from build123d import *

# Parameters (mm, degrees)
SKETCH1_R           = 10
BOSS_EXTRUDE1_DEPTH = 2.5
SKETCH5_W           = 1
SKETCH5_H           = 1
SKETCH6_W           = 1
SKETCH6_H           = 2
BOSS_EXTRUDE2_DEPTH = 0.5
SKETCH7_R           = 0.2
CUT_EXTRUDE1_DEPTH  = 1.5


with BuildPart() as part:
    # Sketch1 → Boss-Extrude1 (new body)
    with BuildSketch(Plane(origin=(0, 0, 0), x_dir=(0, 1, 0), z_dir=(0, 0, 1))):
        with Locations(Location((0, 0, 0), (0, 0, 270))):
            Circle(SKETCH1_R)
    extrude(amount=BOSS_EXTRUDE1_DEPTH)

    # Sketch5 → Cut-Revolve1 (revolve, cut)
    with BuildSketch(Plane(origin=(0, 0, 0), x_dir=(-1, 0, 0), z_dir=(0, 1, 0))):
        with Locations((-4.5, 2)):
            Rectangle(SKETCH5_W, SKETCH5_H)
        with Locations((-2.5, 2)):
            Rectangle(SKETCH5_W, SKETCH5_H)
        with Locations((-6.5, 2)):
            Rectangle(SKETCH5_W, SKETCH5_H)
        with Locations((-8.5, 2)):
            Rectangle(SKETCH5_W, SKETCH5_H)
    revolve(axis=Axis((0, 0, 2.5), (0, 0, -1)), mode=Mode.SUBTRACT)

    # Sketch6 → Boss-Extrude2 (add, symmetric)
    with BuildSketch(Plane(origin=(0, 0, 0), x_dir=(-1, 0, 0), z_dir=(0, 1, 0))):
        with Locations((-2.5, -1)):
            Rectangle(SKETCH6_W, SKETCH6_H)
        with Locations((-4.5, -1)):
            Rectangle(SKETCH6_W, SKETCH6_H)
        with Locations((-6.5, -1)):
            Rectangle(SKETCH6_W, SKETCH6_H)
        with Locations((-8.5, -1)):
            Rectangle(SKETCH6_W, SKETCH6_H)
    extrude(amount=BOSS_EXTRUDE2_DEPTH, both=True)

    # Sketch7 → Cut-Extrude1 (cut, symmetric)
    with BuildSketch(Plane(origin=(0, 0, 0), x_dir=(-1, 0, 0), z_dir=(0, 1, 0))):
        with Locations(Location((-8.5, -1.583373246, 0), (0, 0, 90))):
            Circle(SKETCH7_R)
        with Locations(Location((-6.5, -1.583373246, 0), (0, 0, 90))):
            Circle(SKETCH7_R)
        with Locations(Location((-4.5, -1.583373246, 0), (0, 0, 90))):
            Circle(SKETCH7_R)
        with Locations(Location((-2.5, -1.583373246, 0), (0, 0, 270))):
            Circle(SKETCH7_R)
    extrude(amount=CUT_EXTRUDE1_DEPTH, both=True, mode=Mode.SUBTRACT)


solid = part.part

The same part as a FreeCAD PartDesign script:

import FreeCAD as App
import Part
import Sketcher

V = App.Vector
Q = App.Units.Quantity

doc = App.newDocument("Part")
body = doc.addObject("PartDesign::Body", "Body")

sketch1 = body.newObject("Sketcher::SketchObject", "Sketch")
sketch1.AttachmentSupport = (doc.getObject("XY_Plane"), [""])
sketch1.MapMode = "FlatFace"
sketch1.addGeometry(Part.Circle(V(0, 0, 0), V(0, 0, 1), 10), False)
sketch1.addConstraint(Sketcher.Constraint("Coincident", 0, 3, -1, 1))
sketch1.addConstraint(Sketcher.Constraint("Diameter", 0, Q("20 mm")))
pad1 = body.newObject("PartDesign::Pad", "Pad")
pad1.Profile = sketch1
pad1.Length = 2.5

sketch2 = body.newObject("Sketcher::SketchObject", "Sketch001")
sketch2.AttachmentSupport = (doc.getObject("XZ_Plane"), [""])
sketch2.MapMode = "FlatFace"
sketch2.addGeometry(Part.LineSegment(V(5, 2.5, 0), V(5, 1.5, 0)), False)
sketch2.addGeometry(Part.LineSegment(V(5, 1.5, 0), V(4, 1.5, 0)), False)
sketch2.addGeometry(Part.LineSegment(V(4, 1.5, 0), V(4, 2.5, 0)), False)
sketch2.addGeometry(Part.LineSegment(V(4, 2.5, 0), V(5, 2.5, 0)), False)
sketch2.addGeometry(Part.LineSegment(V(3, 2.5, 0), V(3, 1.5, 0)), False)
sketch2.addGeometry(Part.LineSegment(V(3, 1.5, 0), V(2, 1.5, 0)), False)
sketch2.addGeometry(Part.LineSegment(V(2, 1.5, 0), V(2, 2.5, 0)), False)
sketch2.addGeometry(Part.LineSegment(V(2, 2.5, 0), V(3, 2.5, 0)), False)
sketch2.addGeometry(Part.LineSegment(V(7, 2.5, 0), V(7, 1.5, 0)), False)
sketch2.addGeometry(Part.LineSegment(V(7, 1.5, 0), V(6, 1.5, 0)), False)
sketch2.addGeometry(Part.LineSegment(V(6, 1.5, 0), V(6, 2.5, 0)), False)
sketch2.addGeometry(Part.LineSegment(V(6, 2.5, 0), V(7, 2.5, 0)), False)
sketch2.addGeometry(Part.LineSegment(V(9, 2.5, 0), V(9, 1.5, 0)), False)
sketch2.addGeometry(Part.LineSegment(V(9, 1.5, 0), V(8, 1.5, 0)), False)
sketch2.addGeometry(Part.LineSegment(V(8, 1.5, 0), V(8, 2.5, 0)), False)
sketch2.addGeometry(Part.LineSegment(V(8, 2.5, 0), V(9, 2.5, 0)), False)
sketch2.addConstraint(Sketcher.Constraint("Coincident", 0, 2, 1, 1))
sketch2.addConstraint(Sketcher.Constraint("Coincident", 1, 2, 2, 1))
sketch2.addConstraint(Sketcher.Constraint("Coincident", 2, 2, 3, 1))
sketch2.addConstraint(Sketcher.Constraint("Coincident", 3, 2, 0, 1))
sketch2.addConstraint(Sketcher.Constraint("Coincident", 4, 2, 5, 1))
sketch2.addConstraint(Sketcher.Constraint("Coincident", 5, 2, 6, 1))
sketch2.addConstraint(Sketcher.Constraint("Coincident", 6, 2, 7, 1))
sketch2.addConstraint(Sketcher.Constraint("Coincident", 7, 2, 4, 1))
sketch2.addConstraint(Sketcher.Constraint("Coincident", 8, 2, 9, 1))
sketch2.addConstraint(Sketcher.Constraint("Coincident", 9, 2, 10, 1))
sketch2.addConstraint(Sketcher.Constraint("Coincident", 10, 2, 11, 1))
sketch2.addConstraint(Sketcher.Constraint("Coincident", 11, 2, 8, 1))
sketch2.addConstraint(Sketcher.Constraint("Coincident", 12, 2, 13, 1))
sketch2.addConstraint(Sketcher.Constraint("Coincident", 13, 2, 14, 1))
sketch2.addConstraint(Sketcher.Constraint("Coincident", 14, 2, 15, 1))
sketch2.addConstraint(Sketcher.Constraint("Coincident", 15, 2, 12, 1))
sketch2.addConstraint(Sketcher.Constraint("Vertical", 0))
sketch2.addConstraint(Sketcher.Constraint("Horizontal", 1))
sketch2.addConstraint(Sketcher.Constraint("Vertical", 2))
sketch2.addConstraint(Sketcher.Constraint("Horizontal", 3))
sketch2.addConstraint(Sketcher.Constraint("Vertical", 4))
sketch2.addConstraint(Sketcher.Constraint("Horizontal", 5))
sketch2.addConstraint(Sketcher.Constraint("Vertical", 6))
sketch2.addConstraint(Sketcher.Constraint("Horizontal", 7))
sketch2.addConstraint(Sketcher.Constraint("Vertical", 8))
sketch2.addConstraint(Sketcher.Constraint("Horizontal", 9))
sketch2.addConstraint(Sketcher.Constraint("Vertical", 10))
sketch2.addConstraint(Sketcher.Constraint("Horizontal", 11))
sketch2.addConstraint(Sketcher.Constraint("Vertical", 12))
sketch2.addConstraint(Sketcher.Constraint("Horizontal", 13))
sketch2.addConstraint(Sketcher.Constraint("Vertical", 14))
sketch2.addConstraint(Sketcher.Constraint("Horizontal", 15))
sketch2.addConstraint(Sketcher.Constraint("Horizontal", 1, 2, 4, 2))
sketch2.addConstraint(Sketcher.Constraint("Horizontal", 3, 2, 6, 2))
sketch2.addConstraint(Sketcher.Constraint("Horizontal", 5, 2, 8, 2))
sketch2.addConstraint(Sketcher.Constraint("Horizontal", 7, 2, 10, 2))
sketch2.addConstraint(Sketcher.Constraint("Horizontal", 9, 2, 12, 2))
sketch2.addConstraint(Sketcher.Constraint("Horizontal", 11, 2, 14, 2))
sketch2.addConstraint(Sketcher.Constraint("Equal", 3, 5))
sketch2.addConstraint(Sketcher.Constraint("Equal", 7, 9))
sketch2.addConstraint(Sketcher.Constraint("Equal", 11, 13))
sketch2.addConstraint(Sketcher.Constraint("Equal", 15, 0))
sketch2.addConstraint(Sketcher.Constraint("DistanceX", 1, 2, 1, 1, Q("1 mm")))
sketch2.addConstraint(Sketcher.Constraint("DistanceX", -1, 1, 0, 2, Q("5 mm")))
sketch2.addConstraint(Sketcher.Constraint("DistanceX", -1, 1, 4, 2, Q("3 mm")))
sketch2.addConstraint(Sketcher.Constraint("DistanceX", -1, 1, 8, 2, Q("7 mm")))
sketch2.addConstraint(Sketcher.Constraint("DistanceX", -1, 1, 12, 2, Q("9 mm")))
sketch2.addConstraint(Sketcher.Constraint("DistanceY", -1, 1, 0, 2, Q("1.5 mm")))
groove = body.newObject("PartDesign::Groove", "Groove")
groove.Profile = sketch2
groove.ReferenceAxis = (sketch2, ["V_Axis"])
groove.Angle = 360

sketch3 = body.newObject("Sketcher::SketchObject", "Sketch002")
sketch3.AttachmentSupport = (doc.getObject("XZ_Plane"), [""])
sketch3.MapMode = "FlatFace"
sketch3.addGeometry(Part.LineSegment(V(3, 0, 0), V(3, -2, 0)), False)
sketch3.addGeometry(Part.LineSegment(V(3, -2, 0), V(2, -2, 0)), False)
sketch3.addGeometry(Part.LineSegment(V(2, -2, 0), V(2, 0, 0)), False)
sketch3.addGeometry(Part.LineSegment(V(2, 0, 0), V(3, 0, 0)), False)
sketch3.addGeometry(Part.LineSegment(V(5, 0, 0), V(5, -2, 0)), False)
sketch3.addGeometry(Part.LineSegment(V(5, -2, 0), V(4, -2, 0)), False)
sketch3.addGeometry(Part.LineSegment(V(4, -2, 0), V(4, 0, 0)), False)
sketch3.addGeometry(Part.LineSegment(V(4, 0, 0), V(5, 0, 0)), False)
sketch3.addGeometry(Part.LineSegment(V(7, 0, 0), V(7, -2, 0)), False)
sketch3.addGeometry(Part.LineSegment(V(7, -2, 0), V(6, -2, 0)), False)
sketch3.addGeometry(Part.LineSegment(V(6, -2, 0), V(6, 0, 0)), False)
sketch3.addGeometry(Part.LineSegment(V(6, 0, 0), V(7, 0, 0)), False)
sketch3.addGeometry(Part.LineSegment(V(9, 0, 0), V(9, -2, 0)), False)
sketch3.addGeometry(Part.LineSegment(V(9, -2, 0), V(8, -2, 0)), False)
sketch3.addGeometry(Part.LineSegment(V(8, -2, 0), V(8, 0, 0)), False)
sketch3.addGeometry(Part.LineSegment(V(8, 0, 0), V(9, 0, 0)), False)
sketch3.addConstraint(Sketcher.Constraint("Coincident", 0, 2, 1, 1))
sketch3.addConstraint(Sketcher.Constraint("Coincident", 1, 2, 2, 1))
sketch3.addConstraint(Sketcher.Constraint("Coincident", 2, 2, 3, 1))
sketch3.addConstraint(Sketcher.Constraint("Coincident", 3, 2, 0, 1))
sketch3.addConstraint(Sketcher.Constraint("Coincident", 4, 2, 5, 1))
sketch3.addConstraint(Sketcher.Constraint("Coincident", 5, 2, 6, 1))
sketch3.addConstraint(Sketcher.Constraint("Coincident", 6, 2, 7, 1))
sketch3.addConstraint(Sketcher.Constraint("Coincident", 7, 2, 4, 1))
sketch3.addConstraint(Sketcher.Constraint("Coincident", 8, 2, 9, 1))
sketch3.addConstraint(Sketcher.Constraint("Coincident", 9, 2, 10, 1))
sketch3.addConstraint(Sketcher.Constraint("Coincident", 10, 2, 11, 1))
sketch3.addConstraint(Sketcher.Constraint("Coincident", 11, 2, 8, 1))
sketch3.addConstraint(Sketcher.Constraint("Coincident", 12, 2, 13, 1))
sketch3.addConstraint(Sketcher.Constraint("Coincident", 13, 2, 14, 1))
sketch3.addConstraint(Sketcher.Constraint("Coincident", 14, 2, 15, 1))
sketch3.addConstraint(Sketcher.Constraint("Coincident", 15, 2, 12, 1))
sketch3.addConstraint(Sketcher.Constraint("Vertical", 0))
sketch3.addConstraint(Sketcher.Constraint("Horizontal", 1))
sketch3.addConstraint(Sketcher.Constraint("Vertical", 2))
sketch3.addConstraint(Sketcher.Constraint("Horizontal", 3))
sketch3.addConstraint(Sketcher.Constraint("Vertical", 4))
sketch3.addConstraint(Sketcher.Constraint("Horizontal", 5))
sketch3.addConstraint(Sketcher.Constraint("Vertical", 6))
sketch3.addConstraint(Sketcher.Constraint("Horizontal", 7))
sketch3.addConstraint(Sketcher.Constraint("Vertical", 8))
sketch3.addConstraint(Sketcher.Constraint("Horizontal", 9))
sketch3.addConstraint(Sketcher.Constraint("Vertical", 10))
sketch3.addConstraint(Sketcher.Constraint("Horizontal", 11))
sketch3.addConstraint(Sketcher.Constraint("Vertical", 12))
sketch3.addConstraint(Sketcher.Constraint("Horizontal", 13))
sketch3.addConstraint(Sketcher.Constraint("Vertical", 14))
sketch3.addConstraint(Sketcher.Constraint("Horizontal", 15))
sketch3.addConstraint(Sketcher.Constraint("PointOnObject", 2, 2, -1))
sketch3.addConstraint(Sketcher.Constraint("PointOnObject", 6, 2, -1))
sketch3.addConstraint(Sketcher.Constraint("PointOnObject", 10, 2, -1))
sketch3.addConstraint(Sketcher.Constraint("PointOnObject", 14, 2, -1))
sketch3.addConstraint(Sketcher.Constraint("Horizontal", 1, 2, 4, 2))
sketch3.addConstraint(Sketcher.Constraint("Horizontal", 5, 2, 8, 2))
sketch3.addConstraint(Sketcher.Constraint("Horizontal", 9, 2, 12, 2))
sketch3.addConstraint(Sketcher.Constraint("Equal", 3, 5))
sketch3.addConstraint(Sketcher.Constraint("Equal", 7, 9))
sketch3.addConstraint(Sketcher.Constraint("Equal", 11, 13))
sketch3.addConstraint(Sketcher.Constraint("DistanceX", 1, 2, 1, 1, Q("1 mm")))
sketch3.addConstraint(Sketcher.Constraint("DistanceY", 0, 2, 0, 1, Q("2 mm")))
sketch3.addConstraint(Sketcher.Constraint("DistanceX", -1, 1, 0, 2, Q("3 mm")))
sketch3.addConstraint(Sketcher.Constraint("DistanceX", -1, 1, 4, 2, Q("5 mm")))
sketch3.addConstraint(Sketcher.Constraint("DistanceX", -1, 1, 8, 2, Q("7 mm")))
sketch3.addConstraint(Sketcher.Constraint("DistanceX", -1, 1, 12, 2, Q("9 mm")))
pad2 = body.newObject("PartDesign::Pad", "Pad001")
pad2.Profile = sketch3
pad2.Length = 1
pad2.Midplane = True

sketch4 = body.newObject("Sketcher::SketchObject", "Sketch003")
sketch4.AttachmentSupport = (doc.getObject("XZ_Plane"), [""])
sketch4.MapMode = "FlatFace"
sketch4.addGeometry(Part.Circle(V(8.5, -1.58, 0), V(0, 0, 1), 0.2), False)
sketch4.addGeometry(Part.Circle(V(6.5, -1.58, 0), V(0, 0, 1), 0.2), False)
sketch4.addGeometry(Part.Circle(V(4.5, -1.58, 0), V(0, 0, 1), 0.2), False)
sketch4.addGeometry(Part.Circle(V(2.5, -1.58, 0), V(0, 0, 1), 0.2), False)
sketch4.addConstraint(Sketcher.Constraint("Equal", 0, 1))
sketch4.addConstraint(Sketcher.Constraint("Equal", 1, 2))
sketch4.addConstraint(Sketcher.Constraint("Equal", 2, 3))
sketch4.addConstraint(Sketcher.Constraint("Horizontal", 0, 3, 1, 3))
sketch4.addConstraint(Sketcher.Constraint("Horizontal", 1, 3, 2, 3))
sketch4.addConstraint(Sketcher.Constraint("Horizontal", 2, 3, 3, 3))
sketch4.addConstraint(Sketcher.Constraint("Diameter", 0, Q("0.4 mm")))
sketch4.addConstraint(Sketcher.Constraint("DistanceX", 1, 3, 0, 3, Q("2 mm")))
sketch4.addConstraint(Sketcher.Constraint("DistanceX", 2, 3, 1, 3, Q("2 mm")))
sketch4.addConstraint(Sketcher.Constraint("DistanceX", 3, 3, 2, 3, Q("2 mm")))
sketch4.addConstraint(Sketcher.Constraint("DistanceX", -1, 1, 0, 3, Q("8.5 mm")))
sketch4.addConstraint(Sketcher.Constraint("DistanceY", 0, 3, -1, 1, Q("1.583373 mm")))
pocket1 = body.newObject("PartDesign::Pocket", "Pocket")
pocket1.Profile = sketch4
pocket1.Length = 3
pocket1.Midplane = True

doc.recompute()
